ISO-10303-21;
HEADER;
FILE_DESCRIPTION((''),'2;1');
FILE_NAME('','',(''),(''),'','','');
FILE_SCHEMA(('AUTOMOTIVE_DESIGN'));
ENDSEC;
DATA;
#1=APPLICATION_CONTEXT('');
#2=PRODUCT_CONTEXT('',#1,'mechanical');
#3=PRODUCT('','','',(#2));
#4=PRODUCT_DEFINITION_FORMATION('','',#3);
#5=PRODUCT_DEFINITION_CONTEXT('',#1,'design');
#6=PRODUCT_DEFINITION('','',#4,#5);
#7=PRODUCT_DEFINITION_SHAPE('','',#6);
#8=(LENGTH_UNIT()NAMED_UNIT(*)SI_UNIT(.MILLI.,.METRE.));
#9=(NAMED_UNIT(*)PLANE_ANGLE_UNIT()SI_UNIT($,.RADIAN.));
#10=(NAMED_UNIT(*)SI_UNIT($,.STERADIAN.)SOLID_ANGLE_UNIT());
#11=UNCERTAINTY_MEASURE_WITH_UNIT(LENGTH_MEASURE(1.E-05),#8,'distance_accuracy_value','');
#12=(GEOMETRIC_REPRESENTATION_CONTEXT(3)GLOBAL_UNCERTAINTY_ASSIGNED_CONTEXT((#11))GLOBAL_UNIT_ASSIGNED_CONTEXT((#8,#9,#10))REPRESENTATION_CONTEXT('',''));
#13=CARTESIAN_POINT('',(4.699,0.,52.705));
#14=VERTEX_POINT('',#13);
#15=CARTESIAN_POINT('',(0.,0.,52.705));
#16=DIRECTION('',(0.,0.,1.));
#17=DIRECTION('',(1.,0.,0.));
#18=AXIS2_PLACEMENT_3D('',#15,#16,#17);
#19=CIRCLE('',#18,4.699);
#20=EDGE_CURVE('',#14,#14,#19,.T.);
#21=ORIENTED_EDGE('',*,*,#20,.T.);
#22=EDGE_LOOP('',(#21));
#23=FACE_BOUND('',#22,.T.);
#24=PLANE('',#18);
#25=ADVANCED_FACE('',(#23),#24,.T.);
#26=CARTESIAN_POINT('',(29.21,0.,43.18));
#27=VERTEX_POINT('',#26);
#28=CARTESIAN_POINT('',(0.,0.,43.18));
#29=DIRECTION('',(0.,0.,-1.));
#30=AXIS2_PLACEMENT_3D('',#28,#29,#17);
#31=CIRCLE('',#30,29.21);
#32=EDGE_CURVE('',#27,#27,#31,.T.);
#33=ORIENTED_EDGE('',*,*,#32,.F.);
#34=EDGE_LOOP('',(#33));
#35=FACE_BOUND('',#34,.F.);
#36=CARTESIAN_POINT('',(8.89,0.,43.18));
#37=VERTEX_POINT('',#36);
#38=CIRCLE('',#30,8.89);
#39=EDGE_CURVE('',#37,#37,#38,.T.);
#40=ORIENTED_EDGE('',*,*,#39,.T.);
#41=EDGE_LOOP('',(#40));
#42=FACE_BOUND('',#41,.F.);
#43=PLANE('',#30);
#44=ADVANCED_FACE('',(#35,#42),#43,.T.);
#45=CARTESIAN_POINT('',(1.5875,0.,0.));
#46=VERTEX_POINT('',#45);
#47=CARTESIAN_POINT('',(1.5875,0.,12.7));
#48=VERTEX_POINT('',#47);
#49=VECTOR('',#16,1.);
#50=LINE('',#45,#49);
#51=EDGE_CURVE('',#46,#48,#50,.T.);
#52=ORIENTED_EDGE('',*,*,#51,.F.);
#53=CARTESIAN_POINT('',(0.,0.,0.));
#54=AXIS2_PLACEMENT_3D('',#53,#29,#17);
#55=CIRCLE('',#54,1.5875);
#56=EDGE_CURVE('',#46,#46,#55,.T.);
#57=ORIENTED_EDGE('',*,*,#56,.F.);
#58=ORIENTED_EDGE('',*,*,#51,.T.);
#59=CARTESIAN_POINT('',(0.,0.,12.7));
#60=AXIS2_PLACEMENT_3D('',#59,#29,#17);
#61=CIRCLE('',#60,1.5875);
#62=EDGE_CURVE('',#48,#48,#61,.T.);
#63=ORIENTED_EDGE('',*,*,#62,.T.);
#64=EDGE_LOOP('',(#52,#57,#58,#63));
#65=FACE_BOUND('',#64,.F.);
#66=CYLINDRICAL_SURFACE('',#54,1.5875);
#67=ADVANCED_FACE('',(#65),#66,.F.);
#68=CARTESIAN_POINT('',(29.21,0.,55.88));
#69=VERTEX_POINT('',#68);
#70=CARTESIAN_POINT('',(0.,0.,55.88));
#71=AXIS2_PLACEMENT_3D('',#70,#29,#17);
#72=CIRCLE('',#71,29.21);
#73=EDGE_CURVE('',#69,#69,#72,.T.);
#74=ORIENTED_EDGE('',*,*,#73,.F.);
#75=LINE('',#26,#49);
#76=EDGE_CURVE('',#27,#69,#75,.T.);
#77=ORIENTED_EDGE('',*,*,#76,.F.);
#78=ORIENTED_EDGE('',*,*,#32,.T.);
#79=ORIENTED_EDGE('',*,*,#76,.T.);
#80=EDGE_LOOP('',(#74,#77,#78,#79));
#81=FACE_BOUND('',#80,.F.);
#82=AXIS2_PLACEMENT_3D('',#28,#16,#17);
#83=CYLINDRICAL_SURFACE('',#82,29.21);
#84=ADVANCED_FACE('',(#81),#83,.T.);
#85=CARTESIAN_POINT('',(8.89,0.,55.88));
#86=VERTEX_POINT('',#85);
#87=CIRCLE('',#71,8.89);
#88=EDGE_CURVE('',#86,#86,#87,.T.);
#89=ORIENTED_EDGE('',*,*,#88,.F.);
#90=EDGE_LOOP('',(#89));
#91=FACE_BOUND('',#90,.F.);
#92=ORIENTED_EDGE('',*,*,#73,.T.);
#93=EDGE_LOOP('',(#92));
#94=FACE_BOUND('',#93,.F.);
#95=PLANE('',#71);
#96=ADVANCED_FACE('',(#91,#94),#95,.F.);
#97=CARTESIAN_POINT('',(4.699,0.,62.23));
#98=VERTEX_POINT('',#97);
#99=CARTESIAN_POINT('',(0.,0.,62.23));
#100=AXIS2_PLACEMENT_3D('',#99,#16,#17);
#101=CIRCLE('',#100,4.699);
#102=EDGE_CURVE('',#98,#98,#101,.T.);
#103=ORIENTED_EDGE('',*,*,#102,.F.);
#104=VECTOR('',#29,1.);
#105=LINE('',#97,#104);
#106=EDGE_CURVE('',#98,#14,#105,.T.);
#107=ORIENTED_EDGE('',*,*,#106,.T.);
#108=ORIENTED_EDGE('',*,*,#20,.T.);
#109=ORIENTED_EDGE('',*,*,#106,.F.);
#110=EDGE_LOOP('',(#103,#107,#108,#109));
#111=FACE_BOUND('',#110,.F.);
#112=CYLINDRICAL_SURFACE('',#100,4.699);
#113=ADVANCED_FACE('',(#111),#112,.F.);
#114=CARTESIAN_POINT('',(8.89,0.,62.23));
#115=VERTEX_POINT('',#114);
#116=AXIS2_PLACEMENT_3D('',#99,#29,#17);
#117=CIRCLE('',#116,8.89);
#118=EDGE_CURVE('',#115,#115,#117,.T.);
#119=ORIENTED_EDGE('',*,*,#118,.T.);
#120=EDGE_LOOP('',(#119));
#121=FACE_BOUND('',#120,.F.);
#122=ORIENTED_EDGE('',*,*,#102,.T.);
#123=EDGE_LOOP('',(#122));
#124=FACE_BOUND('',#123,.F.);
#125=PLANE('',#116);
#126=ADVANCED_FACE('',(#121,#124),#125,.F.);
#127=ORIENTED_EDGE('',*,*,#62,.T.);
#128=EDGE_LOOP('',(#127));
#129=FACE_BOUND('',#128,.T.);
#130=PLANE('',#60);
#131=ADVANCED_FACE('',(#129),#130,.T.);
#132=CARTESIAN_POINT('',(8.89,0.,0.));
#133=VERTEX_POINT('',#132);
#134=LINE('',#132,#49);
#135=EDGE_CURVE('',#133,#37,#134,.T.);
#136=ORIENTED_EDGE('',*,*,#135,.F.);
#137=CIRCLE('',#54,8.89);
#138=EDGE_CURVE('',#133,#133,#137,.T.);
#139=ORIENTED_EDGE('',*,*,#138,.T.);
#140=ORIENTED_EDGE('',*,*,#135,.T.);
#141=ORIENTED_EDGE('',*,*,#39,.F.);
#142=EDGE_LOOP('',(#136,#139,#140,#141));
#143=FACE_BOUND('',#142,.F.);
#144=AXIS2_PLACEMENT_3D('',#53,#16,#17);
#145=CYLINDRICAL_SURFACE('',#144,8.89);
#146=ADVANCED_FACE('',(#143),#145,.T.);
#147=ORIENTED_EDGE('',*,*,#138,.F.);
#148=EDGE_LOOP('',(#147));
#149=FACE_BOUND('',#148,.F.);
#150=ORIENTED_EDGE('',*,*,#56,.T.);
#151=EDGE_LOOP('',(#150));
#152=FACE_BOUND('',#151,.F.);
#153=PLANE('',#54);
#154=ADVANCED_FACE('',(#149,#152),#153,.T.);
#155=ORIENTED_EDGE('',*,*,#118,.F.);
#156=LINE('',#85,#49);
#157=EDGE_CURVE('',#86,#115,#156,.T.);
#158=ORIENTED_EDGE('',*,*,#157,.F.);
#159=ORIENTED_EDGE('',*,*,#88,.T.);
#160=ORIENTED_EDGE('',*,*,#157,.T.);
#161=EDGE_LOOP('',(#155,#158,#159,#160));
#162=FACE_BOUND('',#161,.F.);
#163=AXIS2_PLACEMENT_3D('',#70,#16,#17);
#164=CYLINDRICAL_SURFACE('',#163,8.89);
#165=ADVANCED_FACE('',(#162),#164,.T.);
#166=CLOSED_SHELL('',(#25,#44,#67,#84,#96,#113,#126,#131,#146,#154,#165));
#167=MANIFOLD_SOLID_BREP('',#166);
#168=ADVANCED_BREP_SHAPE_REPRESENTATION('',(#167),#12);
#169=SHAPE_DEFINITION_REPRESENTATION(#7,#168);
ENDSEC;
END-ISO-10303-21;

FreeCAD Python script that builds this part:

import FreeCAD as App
import Part
import Sketcher
from FreeCAD import Vector
Q = App.Units.Quantity

doc = App.newDocument("Part")
body = doc.addObject("PartDesign::Body", "Body")

# Sketch on XZ plane
sketch1 = body.newObject("Sketcher::SketchObject", "Sketch")
sketch1.AttachmentSupport = (doc.getObject("XZ_Plane"), [""])
sketch1.MapMode = "FlatFace"
sketch1.addGeometry(Part.LineSegment(Vector(0, 62, 0), Vector(0, 0, 0)), False)
sketch1.addGeometry(Part.LineSegment(Vector(0, 0, 0), Vector(9, 0, 0)), False)
sketch1.addGeometry(Part.LineSegment(Vector(9, 0, 0), Vector(9, 43, 0)), False)
sketch1.addGeometry(Part.LineSegment(Vector(9, 43, 0), Vector(29, 43, 0)), False)
sketch1.addGeometry(Part.LineSegment(Vector(29, 43, 0), Vector(29, 56, 0)), False)
sketch1.addGeometry(Part.LineSegment(Vector(29, 56, 0), Vector(9, 56, 0)), False)
sketch1.addGeometry(Part.LineSegment(Vector(9, 56, 0), Vector(9, 62, 0)), False)
sketch1.addGeometry(Part.LineSegment(Vector(9, 62, 0), Vector(0, 62, 0)), False)
sketch1.addConstraint(Sketcher.Constraint("Coincident", 0, 2, 1, 1))
sketch1.addConstraint(Sketcher.Constraint("Coincident", 1, 2, 2, 1))
sketch1.addConstraint(Sketcher.Constraint("Coincident", 2, 2, 3, 1))
sketch1.addConstraint(Sketcher.Constraint("Coincident", 3, 2, 4, 1))
sketch1.addConstraint(Sketcher.Constraint("Coincident", 4, 2, 5, 1))
sketch1.addConstraint(Sketcher.Constraint("Coincident", 5, 2, 6, 1))
sketch1.addConstraint(Sketcher.Constraint("Coincident", 6, 2, 7, 1))
sketch1.addConstraint(Sketcher.Constraint("Coincident", 7, 2, 0, 1))
sketch1.addConstraint(Sketcher.Constraint("Vertical", 0))
sketch1.addConstraint(Sketcher.Constraint("Horizontal", 1))
sketch1.addConstraint(Sketcher.Constraint("Vertical", 2))
sketch1.addConstraint(Sketcher.Constraint("Horizontal", 3))
sketch1.addConstraint(Sketcher.Constraint("Vertical", 4))
sketch1.addConstraint(Sketcher.Constraint("Horizontal", 5))
sketch1.addConstraint(Sketcher.Constraint("Vertical", 6))
sketch1.addConstraint(Sketcher.Constraint("Horizontal", 7))
sketch1.addConstraint(Sketcher.Constraint("Coincident", 0, 2, -1, 1))
sketch1.addConstraint(Sketcher.Constraint("Vertical", 2, 2, 5, 2))
sketch1.addConstraint(Sketcher.Constraint("DistanceX", 3, 1, 3, 2, Q("0.8 in")))
sketch1.addConstraint(Sketcher.Constraint("DistanceY", 2, 1, 2, 2, Q("1.7 in")))
sketch1.addConstraint(Sketcher.Constraint("DistanceY", 4, 1, 4, 2, Q("0.5 in")))
sketch1.addConstraint(Sketcher.Constraint("DistanceX", 1, 1, 1, 2, Q("0.35 in")))
sketch1.addConstraint(Sketcher.Constraint("DistanceY", 0, 2, 0, 1, Q("2.45 in")))
revolution = body.newObject("PartDesign::Revolution", "Revolution")
revolution.Profile = sketch1
revolution.ReferenceAxis = (sketch1, ["V_Axis"])
revolution.Angle = 360

# Sketch on XY plane
sketch2 = body.newObject("Sketcher::SketchObject", "Sketch001")
sketch2.AttachmentSupport = (doc.getObject("XY_Plane"), [""])
sketch2.MapMode = "FlatFace"
sketch2.AttachmentOffset = App.Placement(Vector(0, 0, 2.45 * 25.4), App.Rotation())
sketch2.addGeometry(Part.Circle(Vector(0, 0, 0), Vector(0, 0, 1), 4.7), False)
sketch2.addConstraint(Sketcher.Constraint("Coincident", 0, 3, -1, 1))
sketch2.addConstraint(Sketcher.Constraint("Diameter", 0, Q("0.37 in")))
pocket1 = body.newObject("PartDesign::Pocket", "Pocket")
pocket1.Profile = sketch2
pocket1.Length = Q("0.375 in")

# Sketch on XY plane
sketch3 = body.newObject("Sketcher::SketchObject", "Sketch002")
sketch3.AttachmentSupport = (doc.getObject("XY_Plane"), [""])
sketch3.MapMode = "FlatFace"
sketch3.addGeometry(Part.Circle(Vector(0, 0, 0), Vector(0, 0, 1), 1.6), False)
sketch3.addConstraint(Sketcher.Constraint("Coincident", 0, 3, -1, 1))
sketch3.addConstraint(Sketcher.Constraint("Diameter", 0, Q("0.125 in")))
pocket2 = body.newObject("PartDesign::Pocket", "Pocket001")
pocket2.Profile = sketch3
pocket2.Length = Q("0.5 in")
pocket2.Reversed = True

doc.recompute()
